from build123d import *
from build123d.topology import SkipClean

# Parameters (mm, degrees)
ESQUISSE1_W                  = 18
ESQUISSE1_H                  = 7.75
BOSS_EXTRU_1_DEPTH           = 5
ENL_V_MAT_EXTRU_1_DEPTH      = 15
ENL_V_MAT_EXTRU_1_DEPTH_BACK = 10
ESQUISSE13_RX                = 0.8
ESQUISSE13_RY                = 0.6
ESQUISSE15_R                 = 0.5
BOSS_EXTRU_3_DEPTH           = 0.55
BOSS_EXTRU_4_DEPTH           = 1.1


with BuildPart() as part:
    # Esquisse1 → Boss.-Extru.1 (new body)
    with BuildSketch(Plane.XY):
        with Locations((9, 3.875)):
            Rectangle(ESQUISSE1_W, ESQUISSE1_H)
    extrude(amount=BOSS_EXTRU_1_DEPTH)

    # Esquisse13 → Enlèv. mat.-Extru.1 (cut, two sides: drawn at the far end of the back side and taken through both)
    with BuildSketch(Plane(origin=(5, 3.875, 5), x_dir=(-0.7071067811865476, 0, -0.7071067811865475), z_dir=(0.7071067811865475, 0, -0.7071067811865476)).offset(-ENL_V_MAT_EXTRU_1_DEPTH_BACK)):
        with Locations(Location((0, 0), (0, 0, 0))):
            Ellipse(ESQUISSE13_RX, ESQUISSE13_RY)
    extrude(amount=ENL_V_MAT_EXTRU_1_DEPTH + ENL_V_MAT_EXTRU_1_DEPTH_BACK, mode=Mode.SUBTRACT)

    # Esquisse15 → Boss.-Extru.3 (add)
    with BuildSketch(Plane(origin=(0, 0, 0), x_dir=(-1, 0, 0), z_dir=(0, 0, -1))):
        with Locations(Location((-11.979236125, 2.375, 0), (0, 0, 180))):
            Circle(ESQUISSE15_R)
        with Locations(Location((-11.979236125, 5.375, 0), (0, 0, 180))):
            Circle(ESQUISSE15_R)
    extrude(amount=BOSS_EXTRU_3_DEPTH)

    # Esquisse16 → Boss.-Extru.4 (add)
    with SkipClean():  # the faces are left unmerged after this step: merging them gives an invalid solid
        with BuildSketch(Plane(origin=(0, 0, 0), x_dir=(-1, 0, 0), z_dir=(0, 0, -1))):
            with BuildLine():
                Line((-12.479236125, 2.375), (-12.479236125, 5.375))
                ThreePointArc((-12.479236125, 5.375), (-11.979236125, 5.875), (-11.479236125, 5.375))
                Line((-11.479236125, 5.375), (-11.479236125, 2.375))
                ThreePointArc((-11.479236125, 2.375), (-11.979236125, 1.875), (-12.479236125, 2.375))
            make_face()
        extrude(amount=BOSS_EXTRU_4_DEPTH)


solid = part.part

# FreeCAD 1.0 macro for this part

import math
import FreeCAD as App
import Part
import Sketcher
from FreeCAD import Vector
Q = App.Units.Quantity

doc = App.newDocument("Part")
body = doc.addObject("PartDesign::Body", "Body")

# Sketch on XY plane
sketch1 = doc.addObject("Sketcher::SketchObject", "Sketch")
body.addObject(sketch1)
sketch1.AttachmentSupport = (doc.XY_Plane, [""])
sketch1.MapMode = "FlatFace"
sketch1.addGeometry([
    Part.LineSegment(Vector(0, 8, 0), Vector(0, 0, 0)),
    Part.LineSegment(Vector(0, 0, 0), Vector(18, 0, 0)),
    Part.LineSegment(Vector(18, 0, 0), Vector(18, 8, 0)),
    Part.LineSegment(Vector(18, 8, 0), Vector(0, 8, 0)),
], False)
sketch1.addConstraint([
    Sketcher.Constraint("Coincident", 0, 2, 1, 1),
    Sketcher.Constraint("Coincident", 1, 2, 2, 1),
    Sketcher.Constraint("Coincident", 2, 2, 3, 1),
    Sketcher.Constraint("Coincident", 3, 2, 0, 1),
    Sketcher.Constraint("Vertical", 0),
    Sketcher.Constraint("Horizontal", 1),
    Sketcher.Constraint("Vertical", 2),
    Sketcher.Constraint("Horizontal", 3),
    Sketcher.Constraint("Coincident", 0, 2, -1, 1),
    Sketcher.Constraint("DistanceX", 1, 1, 1, 2, Q("18 mm")),
    Sketcher.Constraint("DistanceY", 0, 2, 0, 1, Q("7.75 mm")),
])
pad1 = doc.addObject("PartDesign::Pad", "Pad")
body.addObject(pad1)
pad1.Profile = sketch1
pad1.Length = 5

# Sketch on an angled plane
sketch2 = doc.addObject("Sketcher::SketchObject", "Sketch001")
body.addObject(sketch2)
sketch2.Placement = App.Placement(Vector(5, 3.875, 5), App.Rotation(Vector(-0.707106781, 0, -0.707106781), Vector(0, 0.999999999, 0), Vector(0.707106781, 0, -0.707106781), "ZXY"))
sketch2.addGeometry(Part.Ellipse(Vector(0.8, 0, 0), Vector(0, 0.6, 0), Vector(0, 0, 0)), False)
sketch2.addConstraint(Sketcher.Constraint("Block", 0))
pocket1 = doc.addObject("PartDesign::Pocket", "Pocket")
body.addObject(pocket1)
pocket1.Profile = sketch2
pocket1.Type = "ThroughAll"
pocket1.Midplane = True

# Sketch on XY plane
sketch3 = doc.addObject("Sketcher::SketchObject", "Sketch002")
body.addObject(sketch3)
sketch3.AttachmentSupport = (doc.XY_Plane, [""])
sketch3.MapMode = "FlatFace"
sketch3.addGeometry([
    Part.Circle(Vector(12, 2.4, 0), Vector(0, 0, 1), 0.5),
    Part.Circle(Vector(12, 5.4, 0), Vector(0, 0, 1), 0.5),
], False)
sketch3.addConstraint([
    Sketcher.Constraint("Equal", 0, 1),
    Sketcher.Constraint("Vertical", 0, 3, 1, 3),
    Sketcher.Constraint("Diameter", 0, Q("1 mm")),
    Sketcher.Constraint("DistanceY", 0, 3, 1, 3, Q("3 mm")),
    Sketcher.Constraint("DistanceY", -1, 1, 0, 3, Q("2.375 mm")),
    Sketcher.Constraint("DistanceX", -1, 1, 0, 3, Q("11.979236 mm")),
])
pad2 = doc.addObject("PartDesign::Pad", "Pad001")
body.addObject(pad2)
pad2.Profile = sketch3
pad2.Length = 0.55
pad2.Reversed = True

# Sketch on XY plane
sketch4 = doc.addObject("Sketcher::SketchObject", "Sketch003")
body.addObject(sketch4)
sketch4.AttachmentSupport = (doc.XY_Plane, [""])
sketch4.MapMode = "FlatFace"
sketch4.addGeometry([
    Part.LineSegment(Vector(12.5, 5.4, 0), Vector(12.5, 2.4, 0)),
    Part.ArcOfCircle(Part.Circle(Vector(12, 2.4, 0), Vector(0, 0, 1), 0.5), math.radians(180), math.radians(360)),
    Part.LineSegment(Vector(11.5, 2.4, 0), Vector(11.5, 5.4, 0)),
    Part.ArcOfCircle(Part.Circle(Vector(12, 5.4, 0), Vector(0, 0, 1), 0.5), math.radians(0), math.radians(180)),
], False)
sketch4.addConstraint([
    Sketcher.Constraint("Tangent", 0, 2, 1, 2),
    Sketcher.Constraint("Tangent", 1, 1, 2, 1),
    Sketcher.Constraint("Tangent", 2, 2, 3, 2),
    Sketcher.Constraint("Tangent", 3, 1, 0, 1),
    Sketcher.Constraint("Vertical", 0),
    Sketcher.Constraint("Vertical", 2),
    Sketcher.Constraint("Radius", 1, Q("0.5 mm")),
    Sketcher.Constraint("DistanceY", 0, 2, 0, 1, Q("3 mm")),
    Sketcher.Constraint("DistanceY", -1, 1, 1, 3, Q("2.375 mm")),
    Sketcher.Constraint("DistanceX", -1, 1, 1, 3, Q("11.979236 mm")),
])
pad3 = doc.addObject("PartDesign::Pad", "Pad002")
body.addObject(pad3)
pad3.Profile = sketch4
pad3.Length = 1.1
pad3.Reversed = True

doc.recompute()
